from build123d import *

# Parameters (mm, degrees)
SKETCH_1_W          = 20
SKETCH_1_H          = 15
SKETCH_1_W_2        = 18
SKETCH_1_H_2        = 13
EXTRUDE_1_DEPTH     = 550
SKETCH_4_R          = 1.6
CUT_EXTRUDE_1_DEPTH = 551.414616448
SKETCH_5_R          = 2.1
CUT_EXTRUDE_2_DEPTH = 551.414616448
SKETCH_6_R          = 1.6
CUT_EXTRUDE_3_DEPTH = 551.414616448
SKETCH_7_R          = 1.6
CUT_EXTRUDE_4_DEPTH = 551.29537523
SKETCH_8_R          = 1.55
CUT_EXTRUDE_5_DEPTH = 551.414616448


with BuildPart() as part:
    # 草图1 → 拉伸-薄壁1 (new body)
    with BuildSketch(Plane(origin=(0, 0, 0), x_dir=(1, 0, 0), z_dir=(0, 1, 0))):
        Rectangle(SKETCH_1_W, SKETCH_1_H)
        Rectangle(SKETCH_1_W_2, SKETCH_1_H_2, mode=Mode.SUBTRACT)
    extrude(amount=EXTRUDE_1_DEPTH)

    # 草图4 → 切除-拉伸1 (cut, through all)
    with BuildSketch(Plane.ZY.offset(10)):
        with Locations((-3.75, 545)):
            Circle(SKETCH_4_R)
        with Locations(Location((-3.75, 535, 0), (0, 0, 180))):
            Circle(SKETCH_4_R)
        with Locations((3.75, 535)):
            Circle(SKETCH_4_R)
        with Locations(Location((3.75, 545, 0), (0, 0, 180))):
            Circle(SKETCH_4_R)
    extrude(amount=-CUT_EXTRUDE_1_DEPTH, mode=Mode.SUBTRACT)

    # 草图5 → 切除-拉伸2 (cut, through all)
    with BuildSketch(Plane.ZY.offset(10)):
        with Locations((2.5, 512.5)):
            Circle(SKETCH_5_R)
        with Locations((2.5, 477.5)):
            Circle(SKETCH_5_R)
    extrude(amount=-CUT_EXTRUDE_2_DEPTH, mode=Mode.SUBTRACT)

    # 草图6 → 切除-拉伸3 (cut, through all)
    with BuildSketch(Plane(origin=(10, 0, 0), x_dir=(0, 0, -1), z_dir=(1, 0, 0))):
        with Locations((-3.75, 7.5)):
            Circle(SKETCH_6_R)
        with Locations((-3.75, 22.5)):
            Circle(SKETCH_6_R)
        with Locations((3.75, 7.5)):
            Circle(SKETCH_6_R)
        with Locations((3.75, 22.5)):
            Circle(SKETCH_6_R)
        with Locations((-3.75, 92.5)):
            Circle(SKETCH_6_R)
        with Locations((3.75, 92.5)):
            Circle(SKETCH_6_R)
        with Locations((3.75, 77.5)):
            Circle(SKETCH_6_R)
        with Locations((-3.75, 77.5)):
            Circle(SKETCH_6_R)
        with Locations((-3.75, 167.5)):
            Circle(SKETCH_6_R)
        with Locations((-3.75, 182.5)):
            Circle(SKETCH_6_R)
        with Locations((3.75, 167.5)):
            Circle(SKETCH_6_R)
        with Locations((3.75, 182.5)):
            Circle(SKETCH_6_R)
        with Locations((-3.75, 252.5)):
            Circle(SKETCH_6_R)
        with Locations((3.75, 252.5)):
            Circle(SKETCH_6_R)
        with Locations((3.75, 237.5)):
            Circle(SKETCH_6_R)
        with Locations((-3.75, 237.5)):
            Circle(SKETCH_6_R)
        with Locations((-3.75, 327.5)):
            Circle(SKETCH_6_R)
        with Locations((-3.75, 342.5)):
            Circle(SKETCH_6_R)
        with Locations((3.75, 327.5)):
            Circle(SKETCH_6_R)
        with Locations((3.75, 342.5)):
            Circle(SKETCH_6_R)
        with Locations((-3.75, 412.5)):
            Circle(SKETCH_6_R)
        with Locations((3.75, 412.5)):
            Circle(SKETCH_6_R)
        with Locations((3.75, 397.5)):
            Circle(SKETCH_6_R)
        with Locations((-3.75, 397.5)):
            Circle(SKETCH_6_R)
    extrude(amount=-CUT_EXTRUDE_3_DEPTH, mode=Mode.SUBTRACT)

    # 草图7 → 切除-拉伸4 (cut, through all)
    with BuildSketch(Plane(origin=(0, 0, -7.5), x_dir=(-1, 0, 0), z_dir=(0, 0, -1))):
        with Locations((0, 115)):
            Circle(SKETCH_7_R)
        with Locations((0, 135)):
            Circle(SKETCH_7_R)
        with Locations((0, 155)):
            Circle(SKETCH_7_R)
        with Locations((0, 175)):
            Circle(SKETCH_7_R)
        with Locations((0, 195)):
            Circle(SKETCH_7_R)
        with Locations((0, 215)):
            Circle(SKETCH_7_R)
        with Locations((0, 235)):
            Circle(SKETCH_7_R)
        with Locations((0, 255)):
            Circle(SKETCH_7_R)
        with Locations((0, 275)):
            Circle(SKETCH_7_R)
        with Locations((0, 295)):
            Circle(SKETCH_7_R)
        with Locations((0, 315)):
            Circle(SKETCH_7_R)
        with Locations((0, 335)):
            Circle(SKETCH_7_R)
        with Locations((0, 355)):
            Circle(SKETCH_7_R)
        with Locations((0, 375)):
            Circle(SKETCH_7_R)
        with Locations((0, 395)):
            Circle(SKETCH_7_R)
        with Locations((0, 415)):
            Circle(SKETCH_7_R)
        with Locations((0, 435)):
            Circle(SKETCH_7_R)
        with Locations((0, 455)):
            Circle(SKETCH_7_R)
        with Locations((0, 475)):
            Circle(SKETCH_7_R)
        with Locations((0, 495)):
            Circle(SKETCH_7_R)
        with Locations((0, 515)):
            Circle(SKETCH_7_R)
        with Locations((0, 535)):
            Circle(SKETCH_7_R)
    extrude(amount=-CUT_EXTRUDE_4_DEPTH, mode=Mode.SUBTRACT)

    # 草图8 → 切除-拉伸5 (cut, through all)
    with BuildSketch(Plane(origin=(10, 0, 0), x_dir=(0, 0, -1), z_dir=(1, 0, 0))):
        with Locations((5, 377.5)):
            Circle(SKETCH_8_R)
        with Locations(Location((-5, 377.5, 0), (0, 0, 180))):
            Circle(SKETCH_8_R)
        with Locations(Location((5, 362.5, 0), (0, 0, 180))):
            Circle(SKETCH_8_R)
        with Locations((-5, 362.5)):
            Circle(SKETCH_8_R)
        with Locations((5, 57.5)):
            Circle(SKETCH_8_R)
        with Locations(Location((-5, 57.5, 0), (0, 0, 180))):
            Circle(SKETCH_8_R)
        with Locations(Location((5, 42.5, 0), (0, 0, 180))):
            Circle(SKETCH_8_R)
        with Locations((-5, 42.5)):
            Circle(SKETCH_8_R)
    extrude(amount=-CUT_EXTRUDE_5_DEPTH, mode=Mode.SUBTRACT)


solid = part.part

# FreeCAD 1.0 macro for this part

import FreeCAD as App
import Part
import Sketcher

V = App.Vector

doc = App.newDocument("Part")
body = doc.addObject("PartDesign::Body", "Body")

# Sketch on XZ plane
sketch1 = doc.addObject("Sketcher::SketchObject", "Sketch")
body.addObject(sketch1)
sketch1.AttachmentSupport = (doc.XZ_Plane, [""])
sketch1.MapMode = "FlatFace"
sketch1.addGeometry([
    Part.LineSegment(V(-10, -8, 0), V(-10, 8, 0)),  # 0
    Part.LineSegment(V(-10, 8, 0), V(10, 8, 0)),  # 1
    Part.LineSegment(V(10, 8, 0), V(10, -8, 0)),  # 2
    Part.LineSegment(V(10, -8, 0), V(-10, -8, 0)),  # 3
    Part.LineSegment(V(9, 6, 0), V(-9, 6, 0)),  # 4
    Part.LineSegment(V(-9, 6, 0), V(-9, -6, 0)),  # 5
    Part.LineSegment(V(-9, -6, 0), V(9, -6, 0)),  # 6
    Part.LineSegment(V(9, -6, 0), V(9, 6, 0)),  # 7
], False)
sketch1.addConstraint([
    Sketcher.Constraint("Coincident", 0, 2, 1, 1),
    Sketcher.Constraint("Coincident", 1, 2, 2, 1),
    Sketcher.Constraint("Coincident", 2, 2, 3, 1),
    Sketcher.Constraint("Coincident", 3, 2, 0, 1),
    Sketcher.Constraint("Coincident", 4, 2, 5, 1),
    Sketcher.Constraint("Coincident", 5, 2, 6, 1),
    Sketcher.Constraint("Coincident", 6, 2, 7, 1),
    Sketcher.Constraint("Coincident", 7, 2, 4, 1),
    Sketcher.Constraint("Vertical", 0),
    Sketcher.Constraint("Horizontal", 1),
    Sketcher.Constraint("Vertical", 2),
    Sketcher.Constraint("Horizontal", 3),
    Sketcher.Constraint("Horizontal", 4),
    Sketcher.Constraint("Vertical", 5),
    Sketcher.Constraint("Horizontal", 6),
    Sketcher.Constraint("Vertical", 7),
    Sketcher.Constraint("Symmetric", 0, 2, 2, 2, -1, 1),
    Sketcher.Constraint("Symmetric", 4, 2, 6, 2, -1, 1),
    Sketcher.Constraint("DistanceX", 1, 1, 1, 2, 20.0),
    Sketcher.Constraint("DistanceX", 4, 2, 4, 1, 18.0),
    Sketcher.Constraint("DistanceY", 0, 1, 0, 2, 15.0),
    Sketcher.Constraint("DistanceY", 5, 2, 5, 1, 13.0),
])
pad1 = doc.addObject("PartDesign::Pad", "Pad")
body.addObject(pad1)
pad1.Profile = sketch1
pad1.Length = 550
pad1.Reversed = True

# Sketch on YZ plane
sketch2 = doc.addObject("Sketcher::SketchObject", "Sketch001")
body.addObject(sketch2)
sketch2.AttachmentSupport = (doc.YZ_Plane, [""])
sketch2.MapMode = "FlatFace"
sketch2.AttachmentOffset = App.Placement(V(0, 0, -10), App.Rotation())
sketch2.addGeometry([
    Part.Circle(V(545, -3.8, 0), V(0, 0, 1), 1.6),
    Part.Circle(V(535, -3.8, 0), V(0, 0, 1), 1.6),
    Part.Circle(V(535, 3.8, 0), V(0, 0, 1), 1.6),
    Part.Circle(V(545, 3.8, 0), V(0, 0, 1), 1.6),
], False)
sketch2.addConstraint([
    Sketcher.Constraint("Equal", 0, 1),
    Sketcher.Constraint("Equal", 1, 2),
    Sketcher.Constraint("Equal", 2, 3),
    Sketcher.Constraint("Symmetric", 1, 3, 2, 3, -1),
    Sketcher.Constraint("Symmetric", 0, 3, 3, 3, -1),
    Sketcher.Constraint("Horizontal", 0, 3, 1, 3),
    Sketcher.Constraint("Diameter", 0, 3.2),
    Sketcher.Constraint("DistanceX", -1, 1, 0, 3, 545.0),
    Sketcher.Constraint("DistanceX", -1, 1, 1, 3, 535.0),
    Sketcher.Constraint("DistanceY", 1, 3, 2, 3, 7.5),
])
pocket1 = doc.addObject("PartDesign::Pocket", "Pocket")
body.addObject(pocket1)
pocket1.Profile = sketch2
pocket1.Type = "ThroughAll"
pocket1.Reversed = True

# Sketch on YZ plane
sketch3 = doc.addObject("Sketcher::SketchObject", "Sketch002")
body.addObject(sketch3)
sketch3.AttachmentSupport = (doc.YZ_Plane, [""])
sketch3.MapMode = "FlatFace"
sketch3.AttachmentOffset = App.Placement(V(0, 0, -10), App.Rotation())
sketch3.addGeometry([
    Part.Circle(V(512.5, 2.5, 0), V(0, 0, 1), 2.1),
    Part.Circle(V(477.5, 2.5, 0), V(0, 0, 1), 2.1),
], False)
sketch3.addConstraint([
    Sketcher.Constraint("Equal", 0, 1),
    Sketcher.Constraint("Horizontal", 0, 3, 1, 3),
    Sketcher.Constraint("Diameter", 0, 4.2),
    Sketcher.Constraint("DistanceX", 1, 3, 0, 3, 35.0),
    Sketcher.Constraint("DistanceX", -1, 1, 0, 3, 512.5),
    Sketcher.Constraint("DistanceY", -1, 1, 0, 3, 2.5),
])
pocket2 = doc.addObject("PartDesign::Pocket", "Pocket001")
body.addObject(pocket2)
pocket2.Profile = sketch3
pocket2.Type = "ThroughAll"
pocket2.Reversed = True

# Sketch on YZ plane
sketch4 = doc.addObject("Sketcher::SketchObject", "Sketch003")
body.addObject(sketch4)
sketch4.AttachmentSupport = (doc.YZ_Plane, [""])
sketch4.MapMode = "FlatFace"
sketch4.AttachmentOffset = App.Placement(V(0, 0, 10), App.Rotation())
sketch4.addGeometry([
    Part.Circle(V(7.5, 3.8, 0), V(0, 0, 1), 1.6),  # 0
    Part.Circle(V(22.5, 3.8, 0), V(0, 0, 1), 1.6),  # 1
    Part.Circle(V(7.5, -3.8, 0), V(0, 0, 1), 1.6),  # 2
    Part.Circle(V(22.5, -3.8, 0), V(0, 0, 1), 1.6),  # 3
    Part.Circle(V(92.5, 3.8, 0), V(0, 0, 1), 1.6),  # 4
    Part.Circle(V(92.5, -3.8, 0), V(0, 0, 1), 1.6),  # 5
    Part.Circle(V(77.5, -3.8, 0), V(0, 0, 1), 1.6),  # 6
    Part.Circle(V(77.5, 3.8, 0), V(0, 0, 1), 1.6),  # 7
    Part.Circle(V(167.5, 3.8, 0), V(0, 0, 1), 1.6),  # 8
    Part.Circle(V(182.5, 3.8, 0), V(0, 0, 1), 1.6),  # 9
    Part.Circle(V(167.5, -3.8, 0), V(0, 0, 1), 1.6),  # 10
    Part.Circle(V(182.5, -3.8, 0), V(0, 0, 1), 1.6),  # 11
    Part.Circle(V(252.5, 3.8, 0), V(0, 0, 1), 1.6),  # 12
    Part.Circle(V(252.5, -3.8, 0), V(0, 0, 1), 1.6),  # 13
    Part.Circle(V(237.5, -3.8, 0), V(0, 0, 1), 1.6),  # 14
    Part.Circle(V(237.5, 3.8, 0), V(0, 0, 1), 1.6),  # 15
    Part.Circle(V(327.5, 3.8, 0), V(0, 0, 1), 1.6),  # 16
    Part.Circle(V(342.5, 3.8, 0), V(0, 0, 1), 1.6),  # 17
    Part.Circle(V(327.5, -3.8, 0), V(0, 0, 1), 1.6),  # 18
    Part.Circle(V(342.5, -3.8, 0), V(0, 0, 1), 1.6),  # 19
    Part.Circle(V(412.5, 3.8, 0), V(0, 0, 1), 1.6),  # 20
    Part.Circle(V(412.5, -3.8, 0), V(0, 0, 1), 1.6),  # 21
    Part.Circle(V(397.5, -3.8, 0), V(0, 0, 1), 1.6),  # 22
    Part.Circle(V(397.5, 3.8, 0), V(0, 0, 1), 1.6),  # 23
], False)
sketch4.addConstraint([
    Sketcher.Constraint("Equal", 0, 1),
    Sketcher.Constraint("Equal", 1, 2),
    Sketcher.Constraint("Equal", 2, 3),
    Sketcher.Constraint("Equal", 3, 4),
    Sketcher.Constraint("Equal", 4, 5),
    Sketcher.Constraint("Equal", 5, 6),
    Sketcher.Constraint("Equal", 6, 7),
    Sketcher.Constraint("Equal", 7, 8),
    Sketcher.Constraint("Equal", 8, 9),
    Sketcher.Constraint("Equal", 9, 10),
    Sketcher.Constraint("Equal", 10, 11),
    Sketcher.Constraint("Equal", 11, 12),
    Sketcher.Constraint("Equal", 12, 13),
    Sketcher.Constraint("Equal", 13, 14),
    Sketcher.Constraint("Equal", 14, 15),
    Sketcher.Constraint("Equal", 15, 16),
    Sketcher.Constraint("Equal", 16, 17),
    Sketcher.Constraint("Equal", 17, 18),
    Sketcher.Constraint("Equal", 18, 19),
    Sketcher.Constraint("Equal", 19, 20),
    Sketcher.Constraint("Equal", 20, 21),
    Sketcher.Constraint("Equal", 21, 22),
    Sketcher.Constraint("Equal", 22, 23),
    Sketcher.Constraint("Symmetric", 0, 3, 2, 3, -1),
    Sketcher.Constraint("Symmetric", 1, 3, 3, 3, -1),
    Sketcher.Constraint("Symmetric", 4, 3, 5, 3, -1),
    Sketcher.Constraint("Symmetric", 6, 3, 7, 3, -1),
    Sketcher.Constraint("Symmetric", 8, 3, 10, 3, -1),
    Sketcher.Constraint("Symmetric", 9, 3, 11, 3, -1),
    Sketcher.Constraint("Symmetric", 12, 3, 13, 3, -1),
    Sketcher.Constraint("Symmetric", 14, 3, 15, 3, -1),
    Sketcher.Constraint("Symmetric", 16, 3, 18, 3, -1),
    Sketcher.Constraint("Symmetric", 17, 3, 19, 3, -1),
    Sketcher.Constraint("Symmetric", 20, 3, 21, 3, -1),
    Sketcher.Constraint("Symmetric", 22, 3, 23, 3, -1),
    Sketcher.Constraint("Horizontal", 0, 3, 1, 3),
    Sketcher.Constraint("Horizontal", 1, 3, 4, 3),
    Sketcher.Constraint("Horizontal", 5, 3, 6, 3),
    Sketcher.Constraint("Horizontal", 7, 3, 8, 3),
    Sketcher.Constraint("Horizontal", 8, 3, 9, 3),
    Sketcher.Constraint("Horizontal", 9, 3, 12, 3),
    Sketcher.Constraint("Horizontal", 13, 3, 14, 3),
    Sketcher.Constraint("Horizontal", 15, 3, 16, 3),
    Sketcher.Constraint("Horizontal", 16, 3, 17, 3),
    Sketcher.Constraint("Horizontal", 17, 3, 20, 3),
    Sketcher.Constraint("Horizontal", 21, 3, 22, 3),
    Sketcher.Constraint("Diameter", 0, 3.2),
    Sketcher.Constraint("DistanceX", 0, 3, 1, 3, 15.0),
    Sketcher.Constraint("DistanceX", 1, 3, 4, 3, 70.0),
    Sketcher.Constraint("DistanceX", 6, 3, 5, 3, 15.0),
    Sketcher.Constraint("DistanceX", 4, 3, 8, 3, 75.0),
    Sketcher.Constraint("DistanceX", 8, 3, 9, 3, 15.0),
    Sketcher.Constraint("DistanceX", 9, 3, 12, 3, 70.0),
    Sketcher.Constraint("DistanceX", 14, 3, 13, 3, 15.0),
    Sketcher.Constraint("DistanceX", 12, 3, 16, 3, 75.0),
    Sketcher.Constraint("DistanceX", 16, 3, 17, 3, 15.0),
    Sketcher.Constraint("DistanceX", 17, 3, 20, 3, 70.0),
    Sketcher.Constraint("DistanceX", 22, 3, 21, 3, 15.0),
    Sketcher.Constraint("DistanceX", -1, 1, 0, 3, 7.5),
    Sketcher.Constraint("DistanceY", 2, 3, 0, 3, 7.5),
])
pocket3 = doc.addObject("PartDesign::Pocket", "Pocket002")
body.addObject(pocket3)
pocket3.Profile = sketch4
pocket3.Type = "ThroughAll"

# Sketch on XY plane
sketch5 = doc.addObject("Sketcher::SketchObject", "Sketch004")
body.addObject(sketch5)
sketch5.AttachmentSupport = (doc.XY_Plane, [""])
sketch5.MapMode = "FlatFace"
sketch5.AttachmentOffset = App.Placement(V(0, 0, -7.5), App.Rotation())
sketch5.addGeometry([
    Part.Circle(V(0, 115, 0), V(0, 0, 1), 1.6),  # 0
    Part.Circle(V(0, 135, 0), V(0, 0, 1), 1.6),  # 1
    Part.Circle(V(0, 155, 0), V(0, 0, 1), 1.6),  # 2
    Part.Circle(V(0, 175, 0), V(0, 0, 1), 1.6),  # 3
    Part.Circle(V(0, 195, 0), V(0, 0, 1), 1.6),  # 4
    Part.Circle(V(0, 215, 0), V(0, 0, 1), 1.6),  # 5
    Part.Circle(V(0, 235, 0), V(0, 0, 1), 1.6),  # 6
    Part.Circle(V(0, 255, 0), V(0, 0, 1), 1.6),  # 7
    Part.Circle(V(0, 275, 0), V(0, 0, 1), 1.6),  # 8
    Part.Circle(V(0, 295, 0), V(0, 0, 1), 1.6),  # 9
    Part.Circle(V(0, 315, 0), V(0, 0, 1), 1.6),  # 10
    Part.Circle(V(0, 335, 0), V(0, 0, 1), 1.6),  # 11
    Part.Circle(V(0, 355, 0), V(0, 0, 1), 1.6),  # 12
    Part.Circle(V(0, 375, 0), V(0, 0, 1), 1.6),  # 13
    Part.Circle(V(0, 395, 0), V(0, 0, 1), 1.6),  # 14
    Part.Circle(V(0, 415, 0), V(0, 0, 1), 1.6),  # 15
    Part.Circle(V(0, 435, 0), V(0, 0, 1), 1.6),  # 16
    Part.Circle(V(0, 455, 0), V(0, 0, 1), 1.6),  # 17
    Part.Circle(V(0, 475, 0), V(0, 0, 1), 1.6),  # 18
    Part.Circle(V(0, 495, 0), V(0, 0, 1), 1.6),  # 19
    Part.Circle(V(0, 515, 0), V(0, 0, 1), 1.6),  # 20
    Part.Circle(V(0, 535, 0), V(0, 0, 1), 1.6),  # 21
], False)
sketch5.addConstraint([
    Sketcher.Constraint("Equal", 0, 1),
    Sketcher.Constraint("Equal", 1, 2),
    Sketcher.Constraint("Equal", 2, 3),
    Sketcher.Constraint("Equal", 3, 4),
    Sketcher.Constraint("Equal", 4, 5),
    Sketcher.Constraint("Equal", 5, 6),
    Sketcher.Constraint("Equal", 6, 7),
    Sketcher.Constraint("Equal", 7, 8),
    Sketcher.Constraint("Equal", 8, 9),
    Sketcher.Constraint("Equal", 9, 10),
    Sketcher.Constraint("Equal", 10, 11),
    Sketcher.Constraint("Equal", 11, 12),
    Sketcher.Constraint("Equal", 12, 13),
    Sketcher.Constraint("Equal", 13, 14),
    Sketcher.Constraint("Equal", 14, 15),
    Sketcher.Constraint("Equal", 15, 16),
    Sketcher.Constraint("Equal", 16, 17),
    Sketcher.Constraint("Equal", 17, 18),
    Sketcher.Constraint("Equal", 18, 19),
    Sketcher.Constraint("Equal", 19, 20),
    Sketcher.Constraint("Equal", 20, 21),
    Sketcher.Constraint("PointOnObject", 0, 3, -2),
    Sketcher.Constraint("PointOnObject", 1, 3, -2),
    Sketcher.Constraint("PointOnObject", 2, 3, -2),
    Sketcher.Constraint("PointOnObject", 3, 3, -2),
    Sketcher.Constraint("PointOnObject", 4, 3, -2),
    Sketcher.Constraint("PointOnObject", 5, 3, -2),
    Sketcher.Constraint("PointOnObject", 6, 3, -2),
    Sketcher.Constraint("PointOnObject", 7, 3, -2),
    Sketcher.Constraint("PointOnObject", 8, 3, -2),
    Sketcher.Constraint("PointOnObject", 9, 3, -2),
    Sketcher.Constraint("PointOnObject", 10, 3, -2),
    Sketcher.Constraint("PointOnObject", 11, 3, -2),
    Sketcher.Constraint("PointOnObject", 12, 3, -2),
    Sketcher.Constraint("PointOnObject", 13, 3, -2),
    Sketcher.Constraint("PointOnObject", 14, 3, -2),
    Sketcher.Constraint("PointOnObject", 15, 3, -2),
    Sketcher.Constraint("PointOnObject", 16, 3, -2),
    Sketcher.Constraint("PointOnObject", 17, 3, -2),
    Sketcher.Constraint("PointOnObject", 18, 3, -2),
    Sketcher.Constraint("PointOnObject", 19, 3, -2),
    Sketcher.Constraint("PointOnObject", 20, 3, -2),
    Sketcher.Constraint("PointOnObject", 21, 3, -2),
    Sketcher.Constraint("Diameter", 0, 3.2),
    Sketcher.Constraint("DistanceY", -1, 1, 0, 3, 115.0),
    Sketcher.Constraint("DistanceY", -1, 1, 1, 3, 135.0),
    Sketcher.Constraint("DistanceY", -1, 1, 2, 3, 155.0),
    Sketcher.Constraint("DistanceY", -1, 1, 3, 3, 175.0),
    Sketcher.Constraint("DistanceY", -1, 1, 4, 3, 195.0),
    Sketcher.Constraint("DistanceY", -1, 1, 5, 3, 215.0),
    Sketcher.Constraint("DistanceY", -1, 1, 6, 3, 235.0),
    Sketcher.Constraint("DistanceY", -1, 1, 7, 3, 255.0),
    Sketcher.Constraint("DistanceY", -1, 1, 8, 3, 275.0),
    Sketcher.Constraint("DistanceY", -1, 1, 9, 3, 295.0),
    Sketcher.Constraint("DistanceY", -1, 1, 10, 3, 315.0),
    Sketcher.Constraint("DistanceY", -1, 1, 11, 3, 335.0),
    Sketcher.Constraint("DistanceY", -1, 1, 12, 3, 355.0),
    Sketcher.Constraint("DistanceY", -1, 1, 13, 3, 375.0),
    Sketcher.Constraint("DistanceY", -1, 1, 14, 3, 395.0),
    Sketcher.Constraint("DistanceY", -1, 1, 15, 3, 415.0),
    Sketcher.Constraint("DistanceY", -1, 1, 16, 3, 435.0),
    Sketcher.Constraint("DistanceY", -1, 1, 17, 3, 455.0),
    Sketcher.Constraint("DistanceY", -1, 1, 18, 3, 475.0),
    Sketcher.Constraint("DistanceY", -1, 1, 19, 3, 495.0),
    Sketcher.Constraint("DistanceY", -1, 1, 20, 3, 515.0),
    Sketcher.Constraint("DistanceY", -1, 1, 21, 3, 535.0),
])
pocket4 = doc.addObject("PartDesign::Pocket", "Pocket003")
body.addObject(pocket4)
pocket4.Profile = sketch5
pocket4.Type = "ThroughAll"
pocket4.Reversed = True

# Sketch on YZ plane
sketch6 = doc.addObject("Sketcher::SketchObject", "Sketch005")
body.addObject(sketch6)
sketch6.AttachmentSupport = (doc.YZ_Plane, [""])
sketch6.MapMode = "FlatFace"
sketch6.AttachmentOffset = App.Placement(V(0, 0, 10), App.Rotation())
sketch6.addGeometry([
    Part.Circle(V(377.5, -5, 0), V(0, 0, 1), 1.6),  # 0
    Part.Circle(V(377.5, 5, 0), V(0, 0, 1), 1.6),  # 1
    Part.Circle(V(362.5, -5, 0), V(0, 0, 1), 1.6),  # 2
    Part.Circle(V(362.5, 5, 0), V(0, 0, 1), 1.6),  # 3
    Part.Circle(V(57.5, -5, 0), V(0, 0, 1), 1.6),  # 4
    Part.Circle(V(57.5, 5, 0), V(0, 0, 1), 1.6),  # 5
    Part.Circle(V(42.5, -5, 0), V(0, 0, 1), 1.6),  # 6
    Part.Circle(V(42.5, 5, 0), V(0, 0, 1), 1.6),  # 7
], False)
sketch6.addConstraint([
    Sketcher.Constraint("Equal", 0, 1),
    Sketcher.Constraint("Equal", 1, 2),
    Sketcher.Constraint("Equal", 2, 3),
    Sketcher.Constraint("Equal", 3, 4),
    Sketcher.Constraint("Equal", 4, 5),
    Sketcher.Constraint("Equal", 5, 6),
    Sketcher.Constraint("Equal", 6, 7),
    Sketcher.Constraint("Symmetric", 0, 3, 1, 3, -1),
    Sketcher.Constraint("Symmetric", 2, 3, 3, 3, -1),
    Sketcher.Constraint("Symmetric", 4, 3, 5, 3, -1),
    Sketcher.Constraint("Symmetric", 6, 3, 7, 3, -1),
    Sketcher.Constraint("Horizontal", 0, 3, 2, 3),
    Sketcher.Constraint("Horizontal", 2, 3, 4, 3),
    Sketcher.Constraint("Horizontal", 4, 3, 6, 3),
    Sketcher.Constraint("Diameter", 0, 3.1),
    Sketcher.Constraint("DistanceY", 0, 3, -1, 1, 5.0),
    Sketcher.Constraint("DistanceX", 2, 3, 0, 3, 15.0),
    Sketcher.Constraint("DistanceX", 4, 3, 2, 3, 305.0),
    Sketcher.Constraint("DistanceX", 6, 3, 4, 3, 15.0),
    Sketcher.Constraint("DistanceX", -1, 1, 0, 3, 377.5),
])
pocket5 = doc.addObject("PartDesign::Pocket", "Pocket004")
body.addObject(pocket5)
pocket5.Profile = sketch6
pocket5.Type = "ThroughAll"

doc.recompute()
